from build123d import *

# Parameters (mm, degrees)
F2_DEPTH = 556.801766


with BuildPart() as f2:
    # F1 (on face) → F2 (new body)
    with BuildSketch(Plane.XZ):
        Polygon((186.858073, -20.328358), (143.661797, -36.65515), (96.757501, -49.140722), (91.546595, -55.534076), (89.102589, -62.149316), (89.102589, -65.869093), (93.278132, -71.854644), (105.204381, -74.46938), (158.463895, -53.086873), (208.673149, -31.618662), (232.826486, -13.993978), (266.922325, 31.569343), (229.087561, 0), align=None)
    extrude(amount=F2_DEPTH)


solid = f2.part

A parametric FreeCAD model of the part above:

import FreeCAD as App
import Part
import Sketcher

V = App.Vector

doc = App.newDocument("Part")
body = doc.addObject("PartDesign::Body", "Body")

sketch1 = doc.addObject("Sketcher::SketchObject", "Sketch")
body.addObject(sketch1)
sketch1.AttachmentSupport = (doc.XZ_Plane, [""])
sketch1.MapMode = "FlatFace"
sketch1.addGeometry([
    Part.LineSegment(V(186.9, -20.3, 0), V(143.7, -36.7, 0)),
    Part.LineSegment(V(143.7, -36.7, 0), V(96.8, -49.1, 0)),
    Part.LineSegment(V(96.8, -49.1, 0), V(91.5, -55.5, 0)),
    Part.LineSegment(V(91.5, -55.5, 0), V(89.1, -62.1, 0)),
    Part.LineSegment(V(89.1, -62.1, 0), V(89.1, -65.9, 0)),
    Part.LineSegment(V(89.1, -65.9, 0), V(93.3, -71.9, 0)),
    Part.LineSegment(V(93.3, -71.9, 0), V(105.2, -74.5, 0)),
    Part.LineSegment(V(105.2, -74.5, 0), V(158.5, -53.1, 0)),
    Part.LineSegment(V(158.5, -53.1, 0), V(208.7, -31.6, 0)),
    Part.LineSegment(V(208.7, -31.6, 0), V(232.8, -14, 0)),
    Part.LineSegment(V(232.8, -14, 0), V(266.9, 31.6, 0)),
    Part.LineSegment(V(266.9, 31.6, 0), V(229.1, 0, 0)),
    Part.LineSegment(V(229.1, 0, 0), V(186.9, -20.3, 0)),
], False)
sketch1.addConstraint([
    Sketcher.Constraint("Coincident", 0, 2, 1, 1),
    Sketcher.Constraint("Coincident", 1, 2, 2, 1),
    Sketcher.Constraint("Coincident", 2, 2, 3, 1),
    Sketcher.Constraint("Coincident", 3, 2, 4, 1),
    Sketcher.Constraint("Coincident", 4, 2, 5, 1),
    Sketcher.Constraint("Coincident", 5, 2, 6, 1),
    Sketcher.Constraint("Coincident", 6, 2, 7, 1),
    Sketcher.Constraint("Coincident", 7, 2, 8, 1),
    Sketcher.Constraint("Coincident", 8, 2, 9, 1),
    Sketcher.Constraint("Coincident", 9, 2, 10, 1),
    Sketcher.Constraint("Coincident", 10, 2, 11, 1),
    Sketcher.Constraint("Coincident", 11, 2, 12, 1),
    Sketcher.Constraint("Coincident", 12, 2, 0, 1),
    Sketcher.Constraint("Vertical", 4),
    Sketcher.Constraint("PointOnObject", 11, 2, -1),
    Sketcher.Constraint("Distance", 12, 46.867599),
    Sketcher.Constraint("DistanceX", -1, 1, 1, 2, 96.757501),
    Sketcher.Constraint("DistanceX", 0, 2, 7, 2, 14.802098),
    Sketcher.Constraint("DistanceX", 2, 2, 7, 2, 66.9173),
    Sketcher.Constraint("Distance", 0, 46.178809),
    Sketcher.Constraint("Distance", 1, 48.53764),
    Sketcher.Constraint("Distance", 2, 8.24794),
    Sketcher.Constraint("Distance", 5, 7.298081),
    Sketcher.Constraint("Distance", 8, 54.606348),
    Sketcher.Constraint("Distance", 11, 49.275681),
    Sketcher.Constraint("DistanceY", 4, 2, 4, 1, 3.719777),
    Sketcher.Constraint("DistanceY", 0, 2, -1, 1, 36.65515),
    Sketcher.Constraint("DistanceY", 1, 2, -1, 1, 49.140722),
    Sketcher.Constraint("DistanceX", -1, 1, 3, 2, 89.102589),
    Sketcher.Constraint("DistanceX", -1, 1, 5, 2, 93.278132),
    Sketcher.Constraint("DistanceX", -1, 1, 6, 2, 105.204381),
    Sketcher.Constraint("DistanceY", 6, 2, -1, 1, 74.46938),
    Sketcher.Constraint("DistanceX", -1, 1, 8, 2, 208.673149),
    Sketcher.Constraint("DistanceX", -1, 1, 11, 2, 229.087561),
    Sketcher.Constraint("DistanceY", 3, 2, 2, 2, 6.61524),
    Sketcher.Constraint("DistanceY", 7, 2, 1, 2, 3.946151),
    Sketcher.Constraint("DistanceX", 7, 2, 9, 2, 74.362591),
    Sketcher.Constraint("DistanceX", 9, 2, 10, 2, 34.095839),
    Sketcher.Constraint("DistanceY", 9, 2, 10, 2, 45.563321),
])
pad1 = doc.addObject("PartDesign::Pad", "Pad")
body.addObject(pad1)
pad1.Profile = sketch1
pad1.Length = 556.801766

doc.recompute()
